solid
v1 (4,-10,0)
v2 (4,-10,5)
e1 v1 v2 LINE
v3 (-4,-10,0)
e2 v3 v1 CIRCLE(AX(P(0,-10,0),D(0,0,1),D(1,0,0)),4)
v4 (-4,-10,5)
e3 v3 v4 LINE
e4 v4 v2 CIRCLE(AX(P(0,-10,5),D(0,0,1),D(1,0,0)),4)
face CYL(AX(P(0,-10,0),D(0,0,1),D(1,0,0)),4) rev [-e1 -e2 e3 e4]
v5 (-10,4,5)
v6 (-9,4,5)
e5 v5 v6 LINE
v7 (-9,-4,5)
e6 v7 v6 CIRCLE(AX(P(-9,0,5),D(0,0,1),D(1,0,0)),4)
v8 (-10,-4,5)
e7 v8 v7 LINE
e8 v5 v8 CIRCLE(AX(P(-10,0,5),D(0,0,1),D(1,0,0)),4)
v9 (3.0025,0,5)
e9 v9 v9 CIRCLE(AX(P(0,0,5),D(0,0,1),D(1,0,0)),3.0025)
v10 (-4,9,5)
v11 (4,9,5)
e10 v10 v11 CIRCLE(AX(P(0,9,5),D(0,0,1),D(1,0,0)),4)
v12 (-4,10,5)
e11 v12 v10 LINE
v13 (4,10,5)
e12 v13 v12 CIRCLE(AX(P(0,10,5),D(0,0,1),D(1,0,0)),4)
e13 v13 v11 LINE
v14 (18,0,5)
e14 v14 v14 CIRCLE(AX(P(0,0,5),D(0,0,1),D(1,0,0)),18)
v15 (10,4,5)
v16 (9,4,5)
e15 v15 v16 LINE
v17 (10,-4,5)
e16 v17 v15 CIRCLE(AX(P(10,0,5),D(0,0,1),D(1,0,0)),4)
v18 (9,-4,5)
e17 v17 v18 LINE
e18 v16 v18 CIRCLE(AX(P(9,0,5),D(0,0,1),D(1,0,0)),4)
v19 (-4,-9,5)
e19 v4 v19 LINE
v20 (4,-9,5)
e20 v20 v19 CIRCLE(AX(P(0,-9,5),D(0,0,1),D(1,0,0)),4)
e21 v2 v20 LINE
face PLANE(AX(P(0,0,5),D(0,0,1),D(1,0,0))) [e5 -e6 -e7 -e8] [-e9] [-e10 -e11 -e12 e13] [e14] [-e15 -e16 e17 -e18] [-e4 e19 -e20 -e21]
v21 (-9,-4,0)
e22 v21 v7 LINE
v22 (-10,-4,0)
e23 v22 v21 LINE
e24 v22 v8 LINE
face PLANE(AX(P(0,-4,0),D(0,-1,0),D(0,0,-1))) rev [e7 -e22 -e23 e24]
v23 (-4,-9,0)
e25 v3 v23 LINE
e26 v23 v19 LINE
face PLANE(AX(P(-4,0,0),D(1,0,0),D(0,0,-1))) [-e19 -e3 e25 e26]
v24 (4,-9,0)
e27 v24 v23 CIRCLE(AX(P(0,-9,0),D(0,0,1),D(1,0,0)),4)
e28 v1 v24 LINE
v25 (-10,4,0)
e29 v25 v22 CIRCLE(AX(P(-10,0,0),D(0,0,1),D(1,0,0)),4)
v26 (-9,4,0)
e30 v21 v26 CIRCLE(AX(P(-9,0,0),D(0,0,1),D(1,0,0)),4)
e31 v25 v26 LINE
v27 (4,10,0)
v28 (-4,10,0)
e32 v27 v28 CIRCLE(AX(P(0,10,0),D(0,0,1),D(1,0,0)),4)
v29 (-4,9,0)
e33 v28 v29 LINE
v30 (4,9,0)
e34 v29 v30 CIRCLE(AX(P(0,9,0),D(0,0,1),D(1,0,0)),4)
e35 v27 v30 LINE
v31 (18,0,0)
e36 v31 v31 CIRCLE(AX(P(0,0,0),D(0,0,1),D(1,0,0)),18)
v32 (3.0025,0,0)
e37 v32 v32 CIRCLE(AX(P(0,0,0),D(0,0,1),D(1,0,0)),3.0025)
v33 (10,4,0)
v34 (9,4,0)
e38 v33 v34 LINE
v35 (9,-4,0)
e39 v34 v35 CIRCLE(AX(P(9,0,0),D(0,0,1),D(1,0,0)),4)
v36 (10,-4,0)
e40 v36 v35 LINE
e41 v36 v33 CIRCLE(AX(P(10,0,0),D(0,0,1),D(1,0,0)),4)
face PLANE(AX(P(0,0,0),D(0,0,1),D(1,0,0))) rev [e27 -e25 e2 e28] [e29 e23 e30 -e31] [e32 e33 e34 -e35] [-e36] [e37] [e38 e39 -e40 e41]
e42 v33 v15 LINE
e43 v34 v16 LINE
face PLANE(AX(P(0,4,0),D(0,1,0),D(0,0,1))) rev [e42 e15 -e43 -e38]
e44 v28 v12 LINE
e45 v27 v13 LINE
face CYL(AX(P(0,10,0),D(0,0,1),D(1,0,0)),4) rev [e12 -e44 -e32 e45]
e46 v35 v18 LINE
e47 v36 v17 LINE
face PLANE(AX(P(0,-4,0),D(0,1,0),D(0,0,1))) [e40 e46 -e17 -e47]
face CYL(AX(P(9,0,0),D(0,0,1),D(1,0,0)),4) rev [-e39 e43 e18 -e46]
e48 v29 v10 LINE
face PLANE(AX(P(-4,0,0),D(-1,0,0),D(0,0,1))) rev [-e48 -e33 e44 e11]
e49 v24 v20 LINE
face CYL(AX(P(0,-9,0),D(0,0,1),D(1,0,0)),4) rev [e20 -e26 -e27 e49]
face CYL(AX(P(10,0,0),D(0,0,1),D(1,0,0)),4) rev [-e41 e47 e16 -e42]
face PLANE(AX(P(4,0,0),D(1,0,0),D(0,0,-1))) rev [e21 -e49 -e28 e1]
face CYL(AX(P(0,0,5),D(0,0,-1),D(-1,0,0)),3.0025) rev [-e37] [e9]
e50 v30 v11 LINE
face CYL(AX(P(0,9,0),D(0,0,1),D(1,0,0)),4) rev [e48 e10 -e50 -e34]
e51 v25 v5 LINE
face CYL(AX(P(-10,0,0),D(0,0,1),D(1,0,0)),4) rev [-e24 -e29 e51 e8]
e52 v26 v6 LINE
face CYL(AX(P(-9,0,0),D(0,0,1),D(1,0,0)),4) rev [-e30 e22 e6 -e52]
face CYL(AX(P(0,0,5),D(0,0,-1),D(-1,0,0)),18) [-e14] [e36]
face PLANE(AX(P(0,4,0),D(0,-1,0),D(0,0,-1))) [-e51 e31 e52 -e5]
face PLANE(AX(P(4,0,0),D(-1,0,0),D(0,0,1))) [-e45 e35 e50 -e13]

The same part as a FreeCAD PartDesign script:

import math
import FreeCAD as App
import Part
import Sketcher

V = App.Vector
Q = App.Units.Quantity

doc = App.newDocument("Part")
params = doc.addObject("Spreadsheet::Sheet", "Params")
for row, (alias, value) in enumerate([
    ("sketch1_diameter", "36 mm"),
    ("pad1_length", "5 mm"),
    ("sketch2_radius", "4 mm"),
    ("sketch2_width", "1 mm"),
    ("pocket1_length", "5 mm"),
], start=1):
    params.set(f"A{row}", alias)
    params.set(f"B{row}", "=" + value)
    params.setAlias(f"B{row}", alias)

body = doc.addObject("PartDesign::Body", "Body")

sketch1 = doc.addObject("Sketcher::SketchObject", "Sketch")
body.addObject(sketch1)
sketch1.AttachmentSupport = (doc.XY_Plane, [""])
sketch1.MapMode = "FlatFace"
sketch1.addGeometry(Part.Circle(V(0, 0, 0), V(0, 0, 1), 18), False)
sketch1.addGeometry(Part.Circle(V(0, 0, 0), V(0, 0, 1), 3), False)
sketch1.addConstraint(Sketcher.Constraint("Coincident", 0, 3, -1, 1))
sketch1.addConstraint(Sketcher.Constraint("Coincident", 1, 3, -1, 1))
sketch1.addConstraint(Sketcher.Constraint("Diameter", 0, Q("36 mm")))
sketch1.addConstraint(Sketcher.Constraint("Diameter", 1, Q("6.005 mm")))
sketch1.setExpression("Constraints[2]", "Params.sketch1_diameter")
pad1 = doc.addObject("PartDesign::Pad", "Pad")
body.addObject(pad1)
pad1.Profile = sketch1
pad1.setExpression("Length", "Params.pad1_length")

sketch2 = doc.addObject("Sketcher::SketchObject", "Sketch001")
body.addObject(sketch2)
sketch2.AttachmentSupport = (doc.XY_Plane, [""])
sketch2.MapMode = "FlatFace"
sketch2.AttachmentOffset = App.Placement(V(0, 0, 5), App.Rotation())
sketch2.addGeometry(Part.LineSegment(V(-4, 10, 0), V(-4, 9, 0)), False)
sketch2.addGeometry(Part.ArcOfCircle(Part.Circle(V(0, 9, 0), V(0, 0, 1), 4), math.radians(180), math.radians(360)), False)
sketch2.addGeometry(Part.LineSegment(V(4, 9, 0), V(4, 10, 0)), False)
sketch2.addGeometry(Part.ArcOfCircle(Part.Circle(V(0, 10, 0), V(0, 0, 1), 4), math.radians(0), math.radians(180)), False)
sketch2.addGeometry(Part.LineSegment(V(-10, -4, 0), V(-9, -4, 0)), False)
sketch2.addGeometry(Part.ArcOfCircle(Part.Circle(V(-9, 0, 0), V(0, 0, 1), 4), math.radians(-90), math.radians(90)), False)
sketch2.addGeometry(Part.LineSegment(V(-9, 4, 0), V(-10, 4, 0)), False)
sketch2.addGeometry(Part.ArcOfCircle(Part.Circle(V(-10, 0, 0), V(0, 0, 1), 4), math.radians(90), math.radians(270)), False)
sketch2.addGeometry(Part.LineSegment(V(4, -10, 0), V(4, -9, 0)), False)
sketch2.addGeometry(Part.ArcOfCircle(Part.Circle(V(0, -9, 0), V(0, 0, 1), 4), math.radians(0), math.radians(180)), False)
sketch2.addGeometry(Part.LineSegment(V(-4, -9, 0), V(-4, -10, 0)), False)
sketch2.addGeometry(Part.ArcOfCircle(Part.Circle(V(0, -10, 0), V(0, 0, 1), 4), math.radians(180), math.radians(360)), False)
sketch2.addGeometry(Part.LineSegment(V(10, 4, 0), V(9, 4, 0)), False)
sketch2.addGeometry(Part.ArcOfCircle(Part.Circle(V(9, 0, 0), V(0, 0, 1), 4), math.radians(90), math.radians(270)), False)
sketch2.addGeometry(Part.LineSegment(V(9, -4, 0), V(10, -4, 0)), False)
sketch2.addGeometry(Part.ArcOfCircle(Part.Circle(V(10, 0, 0), V(0, 0, 1), 4), math.radians(-90), math.radians(90)), False)
sketch2.addConstraint(Sketcher.Constraint("Tangent", 0, 2, 1, 1))
sketch2.addConstraint(Sketcher.Constraint("Tangent", 1, 2, 2, 1))
sketch2.addConstraint(Sketcher.Constraint("Tangent", 2, 2, 3, 1))
sketch2.addConstraint(Sketcher.Constraint("Tangent", 3, 2, 0, 1))
sketch2.addConstraint(Sketcher.Constraint("Tangent", 4, 2, 5, 1))
sketch2.addConstraint(Sketcher.Constraint("Tangent", 5, 2, 6, 1))
sketch2.addConstraint(Sketcher.Constraint("Tangent", 6, 2, 7, 1))
sketch2.addConstraint(Sketcher.Constraint("Tangent", 7, 2, 4, 1))
sketch2.addConstraint(Sketcher.Constraint("Tangent", 8, 2, 9, 1))
sketch2.addConstraint(Sketcher.Constraint("Tangent", 9, 2, 10, 1))
sketch2.addConstraint(Sketcher.Constraint("Tangent", 10, 2, 11, 1))
sketch2.addConstraint(Sketcher.Constraint("Tangent", 11, 2, 8, 1))
sketch2.addConstraint(Sketcher.Constraint("Tangent", 12, 2, 13, 1))
sketch2.addConstraint(Sketcher.Constraint("Tangent", 13, 2, 14, 1))
sketch2.addConstraint(Sketcher.Constraint("Tangent", 14, 2, 15, 1))
sketch2.addConstraint(Sketcher.Constraint("Tangent", 15, 2, 12, 1))
sketch2.addConstraint(Sketcher.Constraint("Vertical", 0))
sketch2.addConstraint(Sketcher.Constraint("Vertical", 2))
sketch2.addConstraint(Sketcher.Constraint("Horizontal", 4))
sketch2.addConstraint(Sketcher.Constraint("Horizontal", 6))
sketch2.addConstraint(Sketcher.Constraint("Vertical", 8))
sketch2.addConstraint(Sketcher.Constraint("Vertical", 10))
sketch2.addConstraint(Sketcher.Constraint("Horizontal", 12))
sketch2.addConstraint(Sketcher.Constraint("Horizontal", 14))
sketch2.addConstraint(Sketcher.Constraint("Equal", 3, 5))
sketch2.addConstraint(Sketcher.Constraint("Equal", 7, 9))
sketch2.addConstraint(Sketcher.Constraint("Equal", 11, 13))
sketch2.addConstraint(Sketcher.Constraint("Symmetric", 1, 3, 9, 3, -1, 1))
sketch2.addConstraint(Sketcher.Constraint("Symmetric", 5, 3, 13, 3, -1, 1))
sketch2.addConstraint(Sketcher.Constraint("Symmetric", 7, 3, 15, 3, -2))
sketch2.addConstraint(Sketcher.Constraint("Symmetric", 3, 3, 11, 3, -1))
sketch2.addConstraint(Sketcher.Constraint("Equal", 14, 0))
sketch2.addConstraint(Sketcher.Constraint("Radius", 1, Q("4 mm")))
sketch2.addConstraint(Sketcher.Constraint("DistanceX", 4, 1, 4, 2, Q("1 mm")))
sketch2.addConstraint(Sketcher.Constraint("DistanceY", -1, 1, 1, 3, Q("9 mm")))
sketch2.addConstraint(Sketcher.Constraint("DistanceX", 5, 3, -1, 1, Q("9 mm")))
sketch2.setExpression("Constraints[32]", "Params.sketch2_radius")
sketch2.setExpression("Constraints[33]", "Params.sketch2_width")
pocket1 = doc.addObject("PartDesign::Pocket", "Pocket")
body.addObject(pocket1)
pocket1.Profile = sketch2
pocket1.setExpression("Length", "Params.pocket1_length")

doc.recompute()
